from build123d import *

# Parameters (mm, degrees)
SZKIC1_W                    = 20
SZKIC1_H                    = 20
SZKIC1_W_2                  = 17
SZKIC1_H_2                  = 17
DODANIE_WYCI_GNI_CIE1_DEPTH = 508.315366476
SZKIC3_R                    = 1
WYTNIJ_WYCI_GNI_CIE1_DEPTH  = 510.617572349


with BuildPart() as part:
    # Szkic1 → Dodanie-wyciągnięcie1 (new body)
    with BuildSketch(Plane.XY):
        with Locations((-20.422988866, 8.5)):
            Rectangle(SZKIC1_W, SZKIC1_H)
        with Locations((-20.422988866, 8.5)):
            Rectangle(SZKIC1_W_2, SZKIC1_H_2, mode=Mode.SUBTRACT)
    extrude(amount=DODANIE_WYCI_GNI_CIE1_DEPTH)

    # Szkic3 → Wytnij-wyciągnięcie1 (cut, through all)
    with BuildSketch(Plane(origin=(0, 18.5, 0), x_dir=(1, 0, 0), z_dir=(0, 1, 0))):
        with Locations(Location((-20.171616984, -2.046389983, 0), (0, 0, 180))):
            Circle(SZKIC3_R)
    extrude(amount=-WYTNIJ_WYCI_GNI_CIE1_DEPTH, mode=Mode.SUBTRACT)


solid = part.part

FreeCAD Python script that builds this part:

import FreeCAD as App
import Part
import Sketcher


def add_polygon(sketch, points):
    """Adds a closed chain of lines whose ends are joined by coincident constraints."""
    first, n = sketch.GeometryCount, len(points)
    for a, b in zip(points, points[1:] + points[:1]):
        sketch.addGeometry(Part.LineSegment(App.Vector(*a, 0), App.Vector(*b, 0)), False)
    for i in range(n):
        sketch.addConstraint(Sketcher.Constraint("Coincident", first + i, 2, first + (i + 1) % n, 1))

doc = App.newDocument("Part")
body = doc.addObject("PartDesign::Body", "Body")

# Sketch on XY plane
sketch1 = body.newObject("Sketcher::SketchObject", "Sketch")
sketch1.AttachmentSupport = (doc.getObject("XY_Plane"), [""])
sketch1.MapMode = "FlatFace"
add_polygon(sketch1, [(-30, 18), (-30, -2), (-10, -2), (-10, 18)])  # lines 0-3
add_polygon(sketch1, [(-12, 0), (-29, 0), (-29, 17), (-12, 17)])  # lines 4-7
sketch1.addConstraint(Sketcher.Constraint("Vertical", 0))
sketch1.addConstraint(Sketcher.Constraint("Horizontal", 1))
sketch1.addConstraint(Sketcher.Constraint("Vertical", 2))
sketch1.addConstraint(Sketcher.Constraint("Horizontal", 3))
sketch1.addConstraint(Sketcher.Constraint("Horizontal", 4))
sketch1.addConstraint(Sketcher.Constraint("Vertical", 5))
sketch1.addConstraint(Sketcher.Constraint("Horizontal", 6))
sketch1.addConstraint(Sketcher.Constraint("Vertical", 7))
sketch1.addConstraint(Sketcher.Constraint("PointOnObject", 4, 2, -1))
sketch1.addConstraint(Sketcher.Constraint("Equal", 3, 0))
sketch1.addConstraint(Sketcher.Constraint("Equal", 6, 5))
sketch1.addConstraint(Sketcher.Constraint("DistanceX", 1, 1, 1, 2, 20.0))
sketch1.addConstraint(Sketcher.Constraint("DistanceX", 4, 2, 4, 1, 17.0))
sketch1.addConstraint(Sketcher.Constraint("DistanceY", 0, 2, -1, 1, 1.5))
sketch1.addConstraint(Sketcher.Constraint("DistanceX", 0, 2, 4, 2, 1.5))
sketch1.addConstraint(Sketcher.Constraint("DistanceX", 0, 2, -1, 1, 30.422989))
pad1 = body.newObject("PartDesign::Pad", "Pad")
pad1.Profile = sketch1
pad1.Length = 508.315366

# Sketch on XZ plane
sketch2 = body.newObject("Sketcher::SketchObject", "Sketch001")
sketch2.AttachmentSupport = (doc.getObject("XZ_Plane"), [""])
sketch2.MapMode = "FlatFace"
sketch2.AttachmentOffset = App.Placement(App.Vector(0, 0, -18.5), App.Rotation())
sketch2.addGeometry(Part.Circle(App.Vector(-20.2, 2, 0), App.Vector(0, 0, 1), 1), False)
sketch2.addConstraint(Sketcher.Constraint("Diameter", 0, 2.0))
sketch2.addConstraint(Sketcher.Constraint("DistanceY", -1, 1, 0, 3, 2.04639))
sketch2.addConstraint(Sketcher.Constraint("DistanceX", 0, 3, -1, 1, 20.171617))
pocket1 = body.newObject("PartDesign::Pocket", "Pocket")
pocket1.Profile = sketch2
pocket1.Type = "ThroughAll"
pocket1.Reversed = True

doc.recompute()
